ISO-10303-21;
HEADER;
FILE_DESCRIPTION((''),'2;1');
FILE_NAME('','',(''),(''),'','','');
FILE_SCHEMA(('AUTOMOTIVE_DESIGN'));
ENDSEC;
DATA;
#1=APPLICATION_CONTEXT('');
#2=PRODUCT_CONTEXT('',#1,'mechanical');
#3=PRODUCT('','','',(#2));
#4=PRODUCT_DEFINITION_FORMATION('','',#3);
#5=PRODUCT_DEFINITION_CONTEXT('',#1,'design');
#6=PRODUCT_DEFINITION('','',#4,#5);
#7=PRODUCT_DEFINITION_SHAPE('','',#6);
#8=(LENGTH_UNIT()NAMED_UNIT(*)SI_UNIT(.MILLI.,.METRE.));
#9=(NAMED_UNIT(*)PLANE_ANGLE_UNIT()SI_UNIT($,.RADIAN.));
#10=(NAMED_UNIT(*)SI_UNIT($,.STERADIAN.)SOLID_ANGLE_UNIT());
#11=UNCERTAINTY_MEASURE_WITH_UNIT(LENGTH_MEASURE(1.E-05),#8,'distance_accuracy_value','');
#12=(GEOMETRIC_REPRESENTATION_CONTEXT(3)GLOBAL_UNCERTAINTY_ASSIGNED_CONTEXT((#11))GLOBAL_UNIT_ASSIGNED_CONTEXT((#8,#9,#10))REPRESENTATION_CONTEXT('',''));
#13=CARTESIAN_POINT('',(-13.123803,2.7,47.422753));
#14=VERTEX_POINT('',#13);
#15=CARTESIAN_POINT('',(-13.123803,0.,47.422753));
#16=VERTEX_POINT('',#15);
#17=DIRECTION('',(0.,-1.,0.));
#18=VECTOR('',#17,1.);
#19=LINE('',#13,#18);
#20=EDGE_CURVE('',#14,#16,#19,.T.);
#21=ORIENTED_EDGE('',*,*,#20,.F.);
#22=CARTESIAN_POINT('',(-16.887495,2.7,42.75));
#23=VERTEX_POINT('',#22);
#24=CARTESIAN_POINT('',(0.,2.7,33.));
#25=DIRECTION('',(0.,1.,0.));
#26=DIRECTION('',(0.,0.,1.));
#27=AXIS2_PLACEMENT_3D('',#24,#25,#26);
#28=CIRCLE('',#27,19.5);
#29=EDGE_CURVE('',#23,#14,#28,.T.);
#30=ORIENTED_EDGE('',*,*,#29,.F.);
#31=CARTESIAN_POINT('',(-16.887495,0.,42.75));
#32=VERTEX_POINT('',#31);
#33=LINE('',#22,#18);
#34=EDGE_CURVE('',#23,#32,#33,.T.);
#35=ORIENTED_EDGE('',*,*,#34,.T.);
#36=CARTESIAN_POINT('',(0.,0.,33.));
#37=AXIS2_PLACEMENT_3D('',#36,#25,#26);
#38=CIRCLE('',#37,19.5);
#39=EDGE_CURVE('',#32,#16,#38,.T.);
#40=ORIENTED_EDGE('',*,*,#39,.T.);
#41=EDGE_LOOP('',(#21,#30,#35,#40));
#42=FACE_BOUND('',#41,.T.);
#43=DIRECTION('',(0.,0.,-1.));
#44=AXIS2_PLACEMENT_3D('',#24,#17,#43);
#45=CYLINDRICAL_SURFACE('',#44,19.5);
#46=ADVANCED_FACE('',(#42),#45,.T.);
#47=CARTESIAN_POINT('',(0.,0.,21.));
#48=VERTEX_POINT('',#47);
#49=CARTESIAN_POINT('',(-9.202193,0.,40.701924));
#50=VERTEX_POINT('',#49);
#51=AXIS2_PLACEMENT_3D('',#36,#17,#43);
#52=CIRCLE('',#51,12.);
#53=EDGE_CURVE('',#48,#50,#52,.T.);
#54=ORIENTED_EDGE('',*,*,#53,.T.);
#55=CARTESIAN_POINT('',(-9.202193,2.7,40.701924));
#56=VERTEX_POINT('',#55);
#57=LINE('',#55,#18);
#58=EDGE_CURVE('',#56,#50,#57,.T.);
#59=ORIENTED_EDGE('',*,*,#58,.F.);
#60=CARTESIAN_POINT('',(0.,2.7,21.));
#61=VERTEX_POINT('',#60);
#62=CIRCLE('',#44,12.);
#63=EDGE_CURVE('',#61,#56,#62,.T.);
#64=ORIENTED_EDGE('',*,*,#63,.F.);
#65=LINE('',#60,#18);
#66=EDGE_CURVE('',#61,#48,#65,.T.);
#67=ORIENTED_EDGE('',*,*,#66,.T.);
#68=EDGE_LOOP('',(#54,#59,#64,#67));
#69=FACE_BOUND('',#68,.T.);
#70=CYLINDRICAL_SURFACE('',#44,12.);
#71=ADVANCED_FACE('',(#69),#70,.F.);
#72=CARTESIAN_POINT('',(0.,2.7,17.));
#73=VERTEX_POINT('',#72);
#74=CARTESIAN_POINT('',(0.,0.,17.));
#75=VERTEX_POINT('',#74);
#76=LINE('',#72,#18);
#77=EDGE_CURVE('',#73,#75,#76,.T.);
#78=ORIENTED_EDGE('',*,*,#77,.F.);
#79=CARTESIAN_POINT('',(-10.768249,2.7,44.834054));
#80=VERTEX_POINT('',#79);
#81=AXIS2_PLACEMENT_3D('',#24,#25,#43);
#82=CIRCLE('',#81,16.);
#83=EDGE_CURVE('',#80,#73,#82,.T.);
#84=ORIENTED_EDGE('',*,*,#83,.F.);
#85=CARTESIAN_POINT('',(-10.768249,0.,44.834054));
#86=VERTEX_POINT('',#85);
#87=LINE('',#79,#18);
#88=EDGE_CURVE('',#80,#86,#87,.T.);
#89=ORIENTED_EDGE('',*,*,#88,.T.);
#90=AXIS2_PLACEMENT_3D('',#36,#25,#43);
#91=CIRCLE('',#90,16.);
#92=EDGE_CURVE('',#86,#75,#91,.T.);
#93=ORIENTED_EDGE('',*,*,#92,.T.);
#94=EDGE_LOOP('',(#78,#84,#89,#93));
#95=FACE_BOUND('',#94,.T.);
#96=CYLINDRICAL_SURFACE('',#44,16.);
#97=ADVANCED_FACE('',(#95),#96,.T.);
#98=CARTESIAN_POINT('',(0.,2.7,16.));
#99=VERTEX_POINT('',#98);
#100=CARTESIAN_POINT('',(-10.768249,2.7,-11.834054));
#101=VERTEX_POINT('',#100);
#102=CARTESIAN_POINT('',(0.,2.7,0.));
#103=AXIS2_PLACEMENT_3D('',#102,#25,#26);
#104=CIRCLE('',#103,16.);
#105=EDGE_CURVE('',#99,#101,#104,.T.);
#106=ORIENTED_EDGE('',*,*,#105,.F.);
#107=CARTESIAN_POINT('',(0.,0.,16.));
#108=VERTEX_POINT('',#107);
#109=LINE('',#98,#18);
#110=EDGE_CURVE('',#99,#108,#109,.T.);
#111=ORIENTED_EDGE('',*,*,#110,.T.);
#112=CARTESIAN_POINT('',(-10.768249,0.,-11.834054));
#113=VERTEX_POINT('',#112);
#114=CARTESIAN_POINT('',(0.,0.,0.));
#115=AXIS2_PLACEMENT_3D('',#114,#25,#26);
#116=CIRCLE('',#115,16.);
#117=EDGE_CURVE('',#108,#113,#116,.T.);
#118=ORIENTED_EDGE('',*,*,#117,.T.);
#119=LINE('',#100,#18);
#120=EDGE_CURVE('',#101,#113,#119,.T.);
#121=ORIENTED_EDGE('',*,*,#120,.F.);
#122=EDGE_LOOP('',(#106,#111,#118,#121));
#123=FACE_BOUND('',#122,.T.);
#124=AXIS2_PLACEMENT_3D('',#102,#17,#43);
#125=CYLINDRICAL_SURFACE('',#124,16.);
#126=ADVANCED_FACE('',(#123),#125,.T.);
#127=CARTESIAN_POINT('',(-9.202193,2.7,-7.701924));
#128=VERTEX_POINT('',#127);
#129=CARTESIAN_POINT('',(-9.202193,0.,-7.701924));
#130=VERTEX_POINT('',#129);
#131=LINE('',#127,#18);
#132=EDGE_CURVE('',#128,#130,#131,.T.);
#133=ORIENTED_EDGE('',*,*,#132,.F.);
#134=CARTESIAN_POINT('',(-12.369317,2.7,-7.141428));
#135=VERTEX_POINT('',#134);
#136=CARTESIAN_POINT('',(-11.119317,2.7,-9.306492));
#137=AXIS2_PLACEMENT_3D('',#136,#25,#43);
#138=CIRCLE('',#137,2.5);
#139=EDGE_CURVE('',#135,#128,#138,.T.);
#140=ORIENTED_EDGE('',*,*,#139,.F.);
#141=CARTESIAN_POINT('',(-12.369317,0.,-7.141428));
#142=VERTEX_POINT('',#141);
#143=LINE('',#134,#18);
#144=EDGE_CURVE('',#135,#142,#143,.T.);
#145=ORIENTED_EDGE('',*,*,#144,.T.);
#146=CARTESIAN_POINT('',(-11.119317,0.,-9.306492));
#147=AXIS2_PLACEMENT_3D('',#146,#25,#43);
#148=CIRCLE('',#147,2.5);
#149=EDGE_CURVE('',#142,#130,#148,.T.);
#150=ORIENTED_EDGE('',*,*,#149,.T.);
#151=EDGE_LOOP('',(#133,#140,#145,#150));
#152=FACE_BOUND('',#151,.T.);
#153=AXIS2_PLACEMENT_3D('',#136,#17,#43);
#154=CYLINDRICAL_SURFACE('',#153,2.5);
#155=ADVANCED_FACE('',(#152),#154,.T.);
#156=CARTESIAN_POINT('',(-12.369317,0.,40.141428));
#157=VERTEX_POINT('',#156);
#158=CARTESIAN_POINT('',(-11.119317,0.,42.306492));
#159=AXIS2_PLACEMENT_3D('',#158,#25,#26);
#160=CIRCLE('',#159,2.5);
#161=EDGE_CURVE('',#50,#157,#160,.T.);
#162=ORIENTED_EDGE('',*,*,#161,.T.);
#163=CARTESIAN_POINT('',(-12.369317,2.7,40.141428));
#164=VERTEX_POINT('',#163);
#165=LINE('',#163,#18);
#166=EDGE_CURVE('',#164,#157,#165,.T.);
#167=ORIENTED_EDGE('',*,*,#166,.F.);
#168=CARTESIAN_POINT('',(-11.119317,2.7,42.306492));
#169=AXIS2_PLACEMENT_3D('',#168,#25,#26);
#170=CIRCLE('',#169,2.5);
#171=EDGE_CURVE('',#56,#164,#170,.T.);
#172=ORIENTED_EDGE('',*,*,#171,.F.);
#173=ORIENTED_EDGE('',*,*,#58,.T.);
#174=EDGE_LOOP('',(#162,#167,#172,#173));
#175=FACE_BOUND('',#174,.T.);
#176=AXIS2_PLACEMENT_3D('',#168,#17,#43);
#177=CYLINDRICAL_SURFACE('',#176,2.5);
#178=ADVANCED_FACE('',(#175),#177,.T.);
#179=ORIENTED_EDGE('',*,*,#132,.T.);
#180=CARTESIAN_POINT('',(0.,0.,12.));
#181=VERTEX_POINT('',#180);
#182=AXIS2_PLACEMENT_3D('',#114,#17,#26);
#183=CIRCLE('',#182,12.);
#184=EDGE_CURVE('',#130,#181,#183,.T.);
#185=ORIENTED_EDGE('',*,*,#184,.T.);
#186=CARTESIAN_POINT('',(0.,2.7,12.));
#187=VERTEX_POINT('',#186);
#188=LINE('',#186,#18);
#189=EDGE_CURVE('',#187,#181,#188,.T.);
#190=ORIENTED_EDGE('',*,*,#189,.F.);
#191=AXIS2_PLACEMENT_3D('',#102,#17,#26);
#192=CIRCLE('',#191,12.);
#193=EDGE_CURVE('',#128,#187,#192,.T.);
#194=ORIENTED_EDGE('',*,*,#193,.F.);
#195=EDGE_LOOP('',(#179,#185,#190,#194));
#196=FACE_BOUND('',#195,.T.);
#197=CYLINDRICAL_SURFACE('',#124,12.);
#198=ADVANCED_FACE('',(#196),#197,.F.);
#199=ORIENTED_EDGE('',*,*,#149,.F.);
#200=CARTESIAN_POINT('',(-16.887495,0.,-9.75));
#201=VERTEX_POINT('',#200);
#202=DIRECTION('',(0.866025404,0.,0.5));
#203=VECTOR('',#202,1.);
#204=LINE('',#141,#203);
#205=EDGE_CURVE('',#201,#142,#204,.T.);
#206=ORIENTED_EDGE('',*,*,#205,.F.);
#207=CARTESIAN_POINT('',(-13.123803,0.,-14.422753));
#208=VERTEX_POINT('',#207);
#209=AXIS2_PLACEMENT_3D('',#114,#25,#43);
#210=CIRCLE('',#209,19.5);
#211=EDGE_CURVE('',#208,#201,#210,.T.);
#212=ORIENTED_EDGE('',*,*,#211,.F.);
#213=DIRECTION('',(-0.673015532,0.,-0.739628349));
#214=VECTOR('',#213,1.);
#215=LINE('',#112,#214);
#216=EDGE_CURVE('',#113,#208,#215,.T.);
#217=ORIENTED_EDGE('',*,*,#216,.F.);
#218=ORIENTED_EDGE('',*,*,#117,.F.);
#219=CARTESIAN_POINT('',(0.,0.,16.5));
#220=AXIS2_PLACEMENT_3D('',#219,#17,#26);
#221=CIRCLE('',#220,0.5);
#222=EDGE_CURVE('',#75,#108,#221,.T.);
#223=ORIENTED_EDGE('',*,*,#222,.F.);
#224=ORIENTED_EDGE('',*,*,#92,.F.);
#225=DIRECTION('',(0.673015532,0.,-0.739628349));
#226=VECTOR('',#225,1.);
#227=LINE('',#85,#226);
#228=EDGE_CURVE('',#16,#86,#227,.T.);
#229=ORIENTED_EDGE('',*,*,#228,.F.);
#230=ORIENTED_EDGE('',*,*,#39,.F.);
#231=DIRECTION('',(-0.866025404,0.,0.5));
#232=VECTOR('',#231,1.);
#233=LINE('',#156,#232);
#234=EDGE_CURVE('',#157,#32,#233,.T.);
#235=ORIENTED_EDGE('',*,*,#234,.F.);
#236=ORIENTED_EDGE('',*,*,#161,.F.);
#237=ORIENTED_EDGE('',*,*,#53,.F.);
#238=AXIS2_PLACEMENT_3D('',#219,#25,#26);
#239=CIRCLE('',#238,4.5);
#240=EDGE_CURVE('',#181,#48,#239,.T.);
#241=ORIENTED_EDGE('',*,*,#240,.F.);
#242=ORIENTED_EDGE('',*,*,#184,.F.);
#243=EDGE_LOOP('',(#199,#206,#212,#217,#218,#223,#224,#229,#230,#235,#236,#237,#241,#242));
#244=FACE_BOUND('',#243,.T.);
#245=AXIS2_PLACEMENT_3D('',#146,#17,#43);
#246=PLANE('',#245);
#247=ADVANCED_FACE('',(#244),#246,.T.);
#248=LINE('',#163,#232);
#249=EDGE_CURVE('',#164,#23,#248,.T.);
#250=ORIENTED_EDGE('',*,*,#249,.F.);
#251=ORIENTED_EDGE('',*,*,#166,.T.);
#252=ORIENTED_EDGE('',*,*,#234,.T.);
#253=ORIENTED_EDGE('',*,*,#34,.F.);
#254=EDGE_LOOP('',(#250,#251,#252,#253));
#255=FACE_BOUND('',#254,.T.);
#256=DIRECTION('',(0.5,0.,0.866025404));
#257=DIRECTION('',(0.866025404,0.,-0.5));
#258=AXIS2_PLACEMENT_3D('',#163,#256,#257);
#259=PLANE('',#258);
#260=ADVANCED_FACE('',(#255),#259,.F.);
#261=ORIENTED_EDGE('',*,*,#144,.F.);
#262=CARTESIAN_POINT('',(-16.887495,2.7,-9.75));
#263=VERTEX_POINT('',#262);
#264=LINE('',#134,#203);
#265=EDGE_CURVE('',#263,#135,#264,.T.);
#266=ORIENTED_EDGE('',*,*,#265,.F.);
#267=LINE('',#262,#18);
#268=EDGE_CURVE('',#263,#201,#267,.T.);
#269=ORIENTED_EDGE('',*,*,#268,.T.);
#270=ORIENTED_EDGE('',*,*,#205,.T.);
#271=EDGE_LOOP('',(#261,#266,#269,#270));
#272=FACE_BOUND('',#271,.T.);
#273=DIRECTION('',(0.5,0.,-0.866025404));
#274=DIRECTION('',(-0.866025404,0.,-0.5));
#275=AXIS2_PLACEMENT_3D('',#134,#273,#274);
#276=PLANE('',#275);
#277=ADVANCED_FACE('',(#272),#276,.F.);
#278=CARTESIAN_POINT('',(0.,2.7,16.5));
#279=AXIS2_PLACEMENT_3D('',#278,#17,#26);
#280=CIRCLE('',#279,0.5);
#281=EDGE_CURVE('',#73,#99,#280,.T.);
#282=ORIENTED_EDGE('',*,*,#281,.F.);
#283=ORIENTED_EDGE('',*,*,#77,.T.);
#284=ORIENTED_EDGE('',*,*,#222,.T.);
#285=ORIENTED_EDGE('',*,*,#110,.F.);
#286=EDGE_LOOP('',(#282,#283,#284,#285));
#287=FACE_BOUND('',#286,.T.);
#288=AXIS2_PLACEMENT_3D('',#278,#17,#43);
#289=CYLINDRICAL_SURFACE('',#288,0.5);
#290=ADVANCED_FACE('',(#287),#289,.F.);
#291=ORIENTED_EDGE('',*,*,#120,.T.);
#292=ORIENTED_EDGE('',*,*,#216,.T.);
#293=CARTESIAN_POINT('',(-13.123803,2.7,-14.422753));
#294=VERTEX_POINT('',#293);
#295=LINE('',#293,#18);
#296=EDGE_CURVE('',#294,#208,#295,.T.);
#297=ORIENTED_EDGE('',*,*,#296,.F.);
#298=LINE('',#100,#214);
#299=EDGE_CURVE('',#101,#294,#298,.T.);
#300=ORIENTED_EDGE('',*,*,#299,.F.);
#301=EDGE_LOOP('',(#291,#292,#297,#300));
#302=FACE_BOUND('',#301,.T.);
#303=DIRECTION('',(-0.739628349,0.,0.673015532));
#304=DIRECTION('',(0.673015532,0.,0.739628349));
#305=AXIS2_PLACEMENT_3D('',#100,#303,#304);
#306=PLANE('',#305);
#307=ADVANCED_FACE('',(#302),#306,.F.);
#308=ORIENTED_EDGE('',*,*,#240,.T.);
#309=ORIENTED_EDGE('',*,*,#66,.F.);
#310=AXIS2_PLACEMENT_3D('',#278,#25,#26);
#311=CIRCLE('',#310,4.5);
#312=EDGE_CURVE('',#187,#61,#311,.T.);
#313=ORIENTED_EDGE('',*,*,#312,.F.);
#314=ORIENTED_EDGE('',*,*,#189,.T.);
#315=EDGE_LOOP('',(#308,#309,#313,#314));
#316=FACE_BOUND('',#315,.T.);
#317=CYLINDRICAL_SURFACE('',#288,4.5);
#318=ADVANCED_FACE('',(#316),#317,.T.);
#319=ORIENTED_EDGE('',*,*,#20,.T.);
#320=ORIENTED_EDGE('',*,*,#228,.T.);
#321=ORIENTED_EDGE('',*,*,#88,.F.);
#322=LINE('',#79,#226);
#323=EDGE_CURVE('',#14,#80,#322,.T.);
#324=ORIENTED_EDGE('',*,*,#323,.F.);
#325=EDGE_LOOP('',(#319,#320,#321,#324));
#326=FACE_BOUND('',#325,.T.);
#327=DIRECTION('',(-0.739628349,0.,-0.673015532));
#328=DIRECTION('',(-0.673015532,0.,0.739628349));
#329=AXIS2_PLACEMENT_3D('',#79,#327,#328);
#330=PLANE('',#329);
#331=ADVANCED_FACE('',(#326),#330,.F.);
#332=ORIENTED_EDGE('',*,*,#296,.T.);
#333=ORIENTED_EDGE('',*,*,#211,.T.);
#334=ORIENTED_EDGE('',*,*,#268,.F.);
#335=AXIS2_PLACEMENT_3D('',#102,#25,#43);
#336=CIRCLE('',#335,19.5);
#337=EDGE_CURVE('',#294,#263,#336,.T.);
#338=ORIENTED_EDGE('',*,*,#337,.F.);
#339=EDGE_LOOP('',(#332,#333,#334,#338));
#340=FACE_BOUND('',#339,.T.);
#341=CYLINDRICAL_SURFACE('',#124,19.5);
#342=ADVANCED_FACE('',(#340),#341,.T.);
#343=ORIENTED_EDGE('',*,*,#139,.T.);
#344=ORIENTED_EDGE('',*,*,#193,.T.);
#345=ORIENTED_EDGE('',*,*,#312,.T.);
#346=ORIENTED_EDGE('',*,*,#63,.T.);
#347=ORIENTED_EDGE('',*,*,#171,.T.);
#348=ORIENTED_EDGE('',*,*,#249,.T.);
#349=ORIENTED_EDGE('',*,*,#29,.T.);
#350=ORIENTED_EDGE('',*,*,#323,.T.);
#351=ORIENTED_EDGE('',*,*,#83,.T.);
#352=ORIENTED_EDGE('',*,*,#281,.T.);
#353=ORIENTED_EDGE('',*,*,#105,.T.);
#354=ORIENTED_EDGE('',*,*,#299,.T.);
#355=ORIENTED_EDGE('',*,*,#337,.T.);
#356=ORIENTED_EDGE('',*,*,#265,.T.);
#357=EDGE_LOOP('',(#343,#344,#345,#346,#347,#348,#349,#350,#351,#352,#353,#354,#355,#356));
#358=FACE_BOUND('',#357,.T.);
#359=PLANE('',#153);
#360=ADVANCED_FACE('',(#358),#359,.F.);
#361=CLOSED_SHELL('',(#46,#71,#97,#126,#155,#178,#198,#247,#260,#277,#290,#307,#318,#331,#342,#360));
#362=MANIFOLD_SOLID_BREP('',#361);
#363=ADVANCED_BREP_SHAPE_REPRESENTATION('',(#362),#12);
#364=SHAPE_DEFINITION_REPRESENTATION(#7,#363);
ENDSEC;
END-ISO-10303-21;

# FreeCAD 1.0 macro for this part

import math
import FreeCAD as App
import Part
import Sketcher
from FreeCAD import Vector
Q = App.Units.Quantity

doc = App.newDocument("Part")
body = doc.addObject("PartDesign::Body", "Body")

# Sketch on XZ plane
sketch1 = body.newObject("Sketcher::SketchObject", "Sketch")
sketch1.AttachmentSupport = (doc.getObject("XZ_Plane"), [""])
sketch1.MapMode = "FlatFace"
sketch1.addGeometry([
    Part.LineSegment(Vector(-16.9, -9.8, 0), Vector(-12.4, -7.1, 0)),  # 0
    Part.ArcOfCircle(Part.Circle(Vector(-11.1, -9.3, 0), Vector(0, 0, 1), 2.5), math.radians(40), math.radians(120)),  # 1
    Part.ArcOfCircle(Part.Circle(Vector(0, 0, 0), Vector(0, 0, 1), 12), math.radians(-140), math.radians(90)),  # 2
    Part.ArcOfCircle(Part.Circle(Vector(0, 16.5, 0), Vector(0, 0, 1), 4.5), math.radians(90), math.radians(270)),  # 3
    Part.ArcOfCircle(Part.Circle(Vector(0, 33, 0), Vector(0, 0, 1), 12), math.radians(-90), math.radians(140)),  # 4
    Part.ArcOfCircle(Part.Circle(Vector(-11.1, 42.3, 0), Vector(0, 0, 1), 2.5), math.radians(-120), math.radians(-40)),  # 5
    Part.LineSegment(Vector(-12.4, 40.1, 0), Vector(-16.9, 42.8, 0)),  # 6
    Part.ArcOfCircle(Part.Circle(Vector(0, 33, 0), Vector(0, 0, 1), 19.5), math.radians(132.3), math.radians(150)),  # 7
    Part.LineSegment(Vector(-13.1, 47.4, 0), Vector(-10.8, 44.8, 0)),  # 8
    Part.ArcOfCircle(Part.Circle(Vector(0, 33, 0), Vector(0, 0, 1), 16), math.radians(-90), math.radians(132)),  # 9
    Part.ArcOfCircle(Part.Circle(Vector(0, 16.5, 0), Vector(0, 0, 1), 0.5), math.radians(90), math.radians(270)),  # 10
    Part.ArcOfCircle(Part.Circle(Vector(0, 0, 0), Vector(0, 0, 1), 16), math.radians(-132), math.radians(90)),  # 11
    Part.LineSegment(Vector(-10.8, -11.8, 0), Vector(-13.1, -14.4, 0)),  # 12
    Part.ArcOfCircle(Part.Circle(Vector(0, 0, 0), Vector(0, 0, 1), 19.5), math.radians(-150), math.radians(-132.3)),  # 13
], False)
sketch1.addConstraint([
    Sketcher.Constraint("Tangent", 0, 2, 1, 2),
    Sketcher.Constraint("Tangent", 1, 1, 2, 1),
    Sketcher.Constraint("Tangent", 2, 2, 3, 2),
    Sketcher.Constraint("Tangent", 3, 1, 4, 1),
    Sketcher.Constraint("Tangent", 4, 2, 5, 2),
    Sketcher.Constraint("Tangent", 5, 1, 6, 1),
    Sketcher.Constraint("Coincident", 6, 2, 7, 2),
    Sketcher.Constraint("Coincident", 7, 1, 8, 1),
    Sketcher.Constraint("Coincident", 8, 2, 9, 2),
    Sketcher.Constraint("Tangent", 9, 1, 10, 1),
    Sketcher.Constraint("Tangent", 10, 2, 11, 2),
    Sketcher.Constraint("Coincident", 11, 1, 12, 1),
    Sketcher.Constraint("Coincident", 12, 2, 13, 2),
    Sketcher.Constraint("Coincident", 13, 1, 0, 1),
    Sketcher.Constraint("Coincident", 2, 3, -1, 1),
    Sketcher.Constraint("Coincident", 11, 3, -1, 1),
    Sketcher.Constraint("Coincident", 13, 3, -1, 1),
    Sketcher.Constraint("Coincident", 7, 3, 4, 3),
    Sketcher.Constraint("Coincident", 9, 3, 4, 3),
    Sketcher.Constraint("Coincident", 10, 3, 3, 3),
    Sketcher.Constraint("Equal", 2, 4),
    Sketcher.Constraint("Equal", 1, 5),
    Sketcher.Constraint("Equal", 7, 13),
    Sketcher.Constraint("PointOnObject", 3, 3, -2),
    Sketcher.Constraint("PointOnObject", 4, 3, -2),
    Sketcher.Constraint("Vertical", 1, 3, 5, 3),
    Sketcher.Constraint("Vertical", 0, 2, 5, 1),
    Sketcher.Constraint("Vertical", 8, 2, 11, 1),
    Sketcher.Constraint("Vertical", 7, 1, 12, 2),
    Sketcher.Constraint("Radius", 2, Q("12 mm")),
    Sketcher.Constraint("Radius", 9, Q("16 mm")),
    Sketcher.Constraint("Radius", 1, Q("2.5 mm")),
    Sketcher.Constraint("Radius", 3, Q("4.5 mm")),
    Sketcher.Constraint("Radius", 7, Q("19.5 mm")),
    Sketcher.Constraint("Angle", 0, Q("30 deg")),
    Sketcher.Constraint("DistanceY", -1, 1, 6, 2, Q("42.75 mm")),
    Sketcher.Constraint("DistanceY", 8, 2, 7, 1, Q("2.588699 mm")),
    Sketcher.Constraint("DistanceX", 8, 2, -1, 1, Q("10.768249 mm")),
])
pad1 = body.newObject("PartDesign::Pad", "Pad")
pad1.Profile = sketch1
pad1.Length = 2.7
pad1.Reversed = True

doc.recompute()
